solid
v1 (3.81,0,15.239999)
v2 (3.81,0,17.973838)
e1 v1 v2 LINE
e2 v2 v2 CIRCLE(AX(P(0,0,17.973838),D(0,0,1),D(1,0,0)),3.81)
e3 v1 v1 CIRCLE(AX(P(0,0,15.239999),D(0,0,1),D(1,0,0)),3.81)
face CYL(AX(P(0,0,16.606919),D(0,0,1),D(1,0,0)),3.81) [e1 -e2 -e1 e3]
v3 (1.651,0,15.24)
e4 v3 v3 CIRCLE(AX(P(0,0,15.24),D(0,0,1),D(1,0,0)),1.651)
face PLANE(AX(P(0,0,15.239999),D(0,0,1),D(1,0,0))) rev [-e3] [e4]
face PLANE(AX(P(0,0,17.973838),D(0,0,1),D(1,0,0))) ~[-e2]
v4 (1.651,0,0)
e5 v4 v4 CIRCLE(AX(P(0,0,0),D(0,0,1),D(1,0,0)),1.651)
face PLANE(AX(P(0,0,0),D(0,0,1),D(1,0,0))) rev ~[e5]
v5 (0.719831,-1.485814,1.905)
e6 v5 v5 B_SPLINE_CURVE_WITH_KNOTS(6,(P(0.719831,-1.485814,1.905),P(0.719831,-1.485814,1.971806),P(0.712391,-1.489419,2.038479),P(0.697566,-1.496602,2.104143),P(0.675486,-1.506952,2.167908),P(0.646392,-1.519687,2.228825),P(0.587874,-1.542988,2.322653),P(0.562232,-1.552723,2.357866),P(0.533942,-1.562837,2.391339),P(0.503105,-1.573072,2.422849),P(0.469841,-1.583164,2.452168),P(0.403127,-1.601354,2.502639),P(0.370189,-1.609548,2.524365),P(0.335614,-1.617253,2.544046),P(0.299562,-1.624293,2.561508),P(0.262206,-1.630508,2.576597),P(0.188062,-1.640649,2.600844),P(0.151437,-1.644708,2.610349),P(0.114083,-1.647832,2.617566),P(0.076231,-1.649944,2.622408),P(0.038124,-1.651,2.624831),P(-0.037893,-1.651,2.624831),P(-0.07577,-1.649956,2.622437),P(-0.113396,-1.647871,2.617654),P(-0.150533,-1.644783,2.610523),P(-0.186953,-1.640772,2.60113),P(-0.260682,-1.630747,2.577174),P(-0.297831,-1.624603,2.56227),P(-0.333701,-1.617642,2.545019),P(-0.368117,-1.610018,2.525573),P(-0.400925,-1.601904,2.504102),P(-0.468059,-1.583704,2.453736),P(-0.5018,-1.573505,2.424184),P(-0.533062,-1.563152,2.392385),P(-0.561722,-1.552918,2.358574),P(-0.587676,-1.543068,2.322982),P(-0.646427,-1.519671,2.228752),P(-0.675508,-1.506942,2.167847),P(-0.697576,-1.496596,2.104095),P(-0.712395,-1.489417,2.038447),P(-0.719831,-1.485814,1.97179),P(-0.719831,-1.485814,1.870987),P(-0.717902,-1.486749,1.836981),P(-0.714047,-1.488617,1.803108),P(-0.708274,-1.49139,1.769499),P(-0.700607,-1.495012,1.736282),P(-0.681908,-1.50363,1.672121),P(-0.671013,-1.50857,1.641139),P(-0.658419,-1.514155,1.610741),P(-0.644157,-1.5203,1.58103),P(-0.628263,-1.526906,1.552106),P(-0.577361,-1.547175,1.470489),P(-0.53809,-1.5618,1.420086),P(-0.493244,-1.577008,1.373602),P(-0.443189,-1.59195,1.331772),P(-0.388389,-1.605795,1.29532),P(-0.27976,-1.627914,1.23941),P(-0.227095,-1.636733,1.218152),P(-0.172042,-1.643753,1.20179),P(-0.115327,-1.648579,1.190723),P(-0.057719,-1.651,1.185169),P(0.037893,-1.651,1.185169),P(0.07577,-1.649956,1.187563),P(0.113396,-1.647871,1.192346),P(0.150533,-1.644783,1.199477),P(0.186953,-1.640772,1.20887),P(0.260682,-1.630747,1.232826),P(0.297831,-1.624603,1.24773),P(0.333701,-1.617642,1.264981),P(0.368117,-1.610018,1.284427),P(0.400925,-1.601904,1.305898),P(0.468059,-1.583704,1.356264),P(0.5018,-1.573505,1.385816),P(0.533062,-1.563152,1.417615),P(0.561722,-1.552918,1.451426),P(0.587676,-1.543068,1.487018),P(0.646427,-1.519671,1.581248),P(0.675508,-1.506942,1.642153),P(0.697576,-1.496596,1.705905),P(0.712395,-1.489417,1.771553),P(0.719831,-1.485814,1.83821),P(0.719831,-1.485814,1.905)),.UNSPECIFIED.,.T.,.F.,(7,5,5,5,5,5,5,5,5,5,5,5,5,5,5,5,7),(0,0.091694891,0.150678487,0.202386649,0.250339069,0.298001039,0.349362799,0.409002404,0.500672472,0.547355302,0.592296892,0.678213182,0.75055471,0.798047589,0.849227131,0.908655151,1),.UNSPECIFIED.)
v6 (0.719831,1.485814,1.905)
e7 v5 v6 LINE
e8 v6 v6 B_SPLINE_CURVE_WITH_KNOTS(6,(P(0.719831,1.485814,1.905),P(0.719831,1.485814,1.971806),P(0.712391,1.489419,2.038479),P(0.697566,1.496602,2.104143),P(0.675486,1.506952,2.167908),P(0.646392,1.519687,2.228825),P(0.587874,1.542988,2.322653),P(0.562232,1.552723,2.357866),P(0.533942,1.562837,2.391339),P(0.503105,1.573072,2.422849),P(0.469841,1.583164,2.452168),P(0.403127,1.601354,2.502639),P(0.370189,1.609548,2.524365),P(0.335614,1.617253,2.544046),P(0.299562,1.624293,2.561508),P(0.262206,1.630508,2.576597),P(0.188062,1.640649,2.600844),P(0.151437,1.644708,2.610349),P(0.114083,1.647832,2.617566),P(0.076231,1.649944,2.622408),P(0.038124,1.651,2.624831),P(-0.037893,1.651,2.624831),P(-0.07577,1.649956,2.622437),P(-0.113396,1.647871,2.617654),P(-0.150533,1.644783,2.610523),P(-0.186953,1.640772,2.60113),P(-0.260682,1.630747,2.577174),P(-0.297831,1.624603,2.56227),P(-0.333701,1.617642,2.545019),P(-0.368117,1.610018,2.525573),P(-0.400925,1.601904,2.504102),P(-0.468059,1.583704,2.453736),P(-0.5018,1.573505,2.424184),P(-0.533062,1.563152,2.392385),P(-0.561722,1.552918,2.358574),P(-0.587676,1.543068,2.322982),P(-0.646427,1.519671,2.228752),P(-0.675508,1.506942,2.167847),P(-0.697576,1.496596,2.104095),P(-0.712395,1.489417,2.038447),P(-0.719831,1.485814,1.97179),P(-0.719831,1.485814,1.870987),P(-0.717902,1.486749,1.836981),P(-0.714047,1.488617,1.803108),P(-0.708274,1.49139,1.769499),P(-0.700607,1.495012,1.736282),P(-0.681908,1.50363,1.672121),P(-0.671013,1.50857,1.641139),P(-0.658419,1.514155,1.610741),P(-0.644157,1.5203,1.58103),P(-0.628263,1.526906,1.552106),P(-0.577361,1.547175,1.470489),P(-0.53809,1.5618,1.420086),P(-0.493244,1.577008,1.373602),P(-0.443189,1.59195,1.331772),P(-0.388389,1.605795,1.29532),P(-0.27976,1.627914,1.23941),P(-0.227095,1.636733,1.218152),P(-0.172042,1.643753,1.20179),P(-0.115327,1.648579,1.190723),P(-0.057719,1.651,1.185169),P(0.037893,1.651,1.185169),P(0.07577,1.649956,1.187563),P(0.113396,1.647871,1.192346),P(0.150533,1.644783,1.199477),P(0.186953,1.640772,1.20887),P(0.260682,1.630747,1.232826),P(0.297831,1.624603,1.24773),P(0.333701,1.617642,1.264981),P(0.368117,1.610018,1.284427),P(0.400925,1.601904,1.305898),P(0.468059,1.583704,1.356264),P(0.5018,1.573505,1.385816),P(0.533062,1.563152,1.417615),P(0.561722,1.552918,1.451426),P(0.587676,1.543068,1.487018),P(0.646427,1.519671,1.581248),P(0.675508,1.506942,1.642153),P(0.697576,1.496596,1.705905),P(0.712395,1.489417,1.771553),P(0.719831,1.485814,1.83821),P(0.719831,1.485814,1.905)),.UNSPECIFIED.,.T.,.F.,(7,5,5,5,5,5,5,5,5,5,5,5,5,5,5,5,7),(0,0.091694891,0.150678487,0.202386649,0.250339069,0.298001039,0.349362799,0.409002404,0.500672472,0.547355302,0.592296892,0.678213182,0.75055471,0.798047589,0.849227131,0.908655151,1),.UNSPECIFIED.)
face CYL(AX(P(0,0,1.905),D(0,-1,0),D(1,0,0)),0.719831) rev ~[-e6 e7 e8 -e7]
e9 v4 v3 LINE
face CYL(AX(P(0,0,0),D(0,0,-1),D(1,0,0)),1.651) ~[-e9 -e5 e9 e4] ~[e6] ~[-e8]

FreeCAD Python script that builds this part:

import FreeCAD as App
import Part
import Sketcher

V = App.Vector
Q = App.Units.Quantity

doc = App.newDocument("Part")
body = doc.addObject("PartDesign::Body", "Body")

# Sketch on XY plane
sketch1 = doc.addObject("Sketcher::SketchObject", "Sketch")
body.addObject(sketch1)
sketch1.AttachmentSupport = (doc.XY_Plane, [""])
sketch1.MapMode = "FlatFace"
sketch1.addGeometry(Part.Circle(V(0, 0, 0), V(0, 0, 1), 1.651), False)
sketch1.addConstraint([
    Sketcher.Constraint("Coincident", 0, 3, -1, 1),
    Sketcher.Constraint("Diameter", 0, Q("0.13 in")),
])
pad1 = doc.addObject("PartDesign::Pad", "Pad")
body.addObject(pad1)
pad1.Profile = sketch1
pad1.Length = Q("0.6 in")

# Sketch on XZ plane
sketch2 = doc.addObject("Sketcher::SketchObject", "Sketch001")
body.addObject(sketch2)
sketch2.AttachmentSupport = (doc.XZ_Plane, [""])
sketch2.MapMode = "FlatFace"
sketch2.addGeometry([
    Part.LineSegment(V(0, 17.973838, 0), V(0, 15.239999, 0)),
    Part.LineSegment(V(0, 15.239999, 0), V(3.81, 15.239999, 0)),
    Part.LineSegment(V(3.81, 15.239999, 0), V(3.81, 17.973838, 0)),
    Part.LineSegment(V(3.81, 17.973838, 0), V(0, 17.973838, 0)),
], False)
sketch2.addConstraint([
    Sketcher.Constraint("Coincident", 0, 2, 1, 1),
    Sketcher.Constraint("Coincident", 1, 2, 2, 1),
    Sketcher.Constraint("Coincident", 2, 2, 3, 1),
    Sketcher.Constraint("Coincident", 3, 2, 0, 1),
    Sketcher.Constraint("Vertical", 0),
    Sketcher.Constraint("Horizontal", 1),
    Sketcher.Constraint("Vertical", 2),
    Sketcher.Constraint("Horizontal", 3),
    Sketcher.Constraint("PointOnObject", 0, 2, -2),
    Sketcher.Constraint("DistanceX", 1, 1, 1, 2, Q("0.15 in")),
    Sketcher.Constraint("DistanceY", -1, 1, 0, 2, Q("0.6 in")),
    Sketcher.Constraint("DistanceY", 0, 2, 0, 1, 2.733839),
])
revolution = doc.addObject("PartDesign::Revolution", "Revolution")
body.addObject(revolution)
revolution.Profile = sketch2
revolution.ReferenceAxis = (sketch2, ["V_Axis"])
revolution.Angle = 360

# Sketch on XZ plane
sketch3 = doc.addObject("Sketcher::SketchObject", "Sketch002")
body.addObject(sketch3)
sketch3.AttachmentSupport = (doc.XZ_Plane, [""])
sketch3.MapMode = "FlatFace"
sketch3.addGeometry(Part.Circle(V(0, 1.905, 0), V(0, 0, 1), 0.719831), False)
sketch3.addConstraint([
    Sketcher.Constraint("PointOnObject", 0, 3, -2),
    Sketcher.Constraint("DistanceY", -1, 1, 0, 3, Q("0.075 in")),
    Sketcher.Constraint("Diameter", 0, 1.439662),
])
pocket1 = doc.addObject("PartDesign::Pocket", "Pocket")
body.addObject(pocket1)
pocket1.Profile = sketch3
pocket1.Type = "ThroughAll"

# Sketch on XZ plane
sketch4 = doc.addObject("Sketcher::SketchObject", "Sketch003")
body.addObject(sketch4)
sketch4.AttachmentSupport = (doc.XZ_Plane, [""])
sketch4.MapMode = "FlatFace"
sketch4.addGeometry(Part.Circle(V(0, 1.905, 0), V(0, 0, 1), 0.719831), False)
sketch4.addConstraint([
    Sketcher.Constraint("PointOnObject", 0, 3, -2),
    Sketcher.Constraint("DistanceY", -1, 1, 0, 3, Q("0.075 in")),
    Sketcher.Constraint("Diameter", 0, 1.439662),
])
pocket2 = doc.addObject("PartDesign::Pocket", "Pocket001")
body.addObject(pocket2)
pocket2.Profile = sketch4
pocket2.Type = "ThroughAll"
pocket2.Reversed = True

doc.recompute()
